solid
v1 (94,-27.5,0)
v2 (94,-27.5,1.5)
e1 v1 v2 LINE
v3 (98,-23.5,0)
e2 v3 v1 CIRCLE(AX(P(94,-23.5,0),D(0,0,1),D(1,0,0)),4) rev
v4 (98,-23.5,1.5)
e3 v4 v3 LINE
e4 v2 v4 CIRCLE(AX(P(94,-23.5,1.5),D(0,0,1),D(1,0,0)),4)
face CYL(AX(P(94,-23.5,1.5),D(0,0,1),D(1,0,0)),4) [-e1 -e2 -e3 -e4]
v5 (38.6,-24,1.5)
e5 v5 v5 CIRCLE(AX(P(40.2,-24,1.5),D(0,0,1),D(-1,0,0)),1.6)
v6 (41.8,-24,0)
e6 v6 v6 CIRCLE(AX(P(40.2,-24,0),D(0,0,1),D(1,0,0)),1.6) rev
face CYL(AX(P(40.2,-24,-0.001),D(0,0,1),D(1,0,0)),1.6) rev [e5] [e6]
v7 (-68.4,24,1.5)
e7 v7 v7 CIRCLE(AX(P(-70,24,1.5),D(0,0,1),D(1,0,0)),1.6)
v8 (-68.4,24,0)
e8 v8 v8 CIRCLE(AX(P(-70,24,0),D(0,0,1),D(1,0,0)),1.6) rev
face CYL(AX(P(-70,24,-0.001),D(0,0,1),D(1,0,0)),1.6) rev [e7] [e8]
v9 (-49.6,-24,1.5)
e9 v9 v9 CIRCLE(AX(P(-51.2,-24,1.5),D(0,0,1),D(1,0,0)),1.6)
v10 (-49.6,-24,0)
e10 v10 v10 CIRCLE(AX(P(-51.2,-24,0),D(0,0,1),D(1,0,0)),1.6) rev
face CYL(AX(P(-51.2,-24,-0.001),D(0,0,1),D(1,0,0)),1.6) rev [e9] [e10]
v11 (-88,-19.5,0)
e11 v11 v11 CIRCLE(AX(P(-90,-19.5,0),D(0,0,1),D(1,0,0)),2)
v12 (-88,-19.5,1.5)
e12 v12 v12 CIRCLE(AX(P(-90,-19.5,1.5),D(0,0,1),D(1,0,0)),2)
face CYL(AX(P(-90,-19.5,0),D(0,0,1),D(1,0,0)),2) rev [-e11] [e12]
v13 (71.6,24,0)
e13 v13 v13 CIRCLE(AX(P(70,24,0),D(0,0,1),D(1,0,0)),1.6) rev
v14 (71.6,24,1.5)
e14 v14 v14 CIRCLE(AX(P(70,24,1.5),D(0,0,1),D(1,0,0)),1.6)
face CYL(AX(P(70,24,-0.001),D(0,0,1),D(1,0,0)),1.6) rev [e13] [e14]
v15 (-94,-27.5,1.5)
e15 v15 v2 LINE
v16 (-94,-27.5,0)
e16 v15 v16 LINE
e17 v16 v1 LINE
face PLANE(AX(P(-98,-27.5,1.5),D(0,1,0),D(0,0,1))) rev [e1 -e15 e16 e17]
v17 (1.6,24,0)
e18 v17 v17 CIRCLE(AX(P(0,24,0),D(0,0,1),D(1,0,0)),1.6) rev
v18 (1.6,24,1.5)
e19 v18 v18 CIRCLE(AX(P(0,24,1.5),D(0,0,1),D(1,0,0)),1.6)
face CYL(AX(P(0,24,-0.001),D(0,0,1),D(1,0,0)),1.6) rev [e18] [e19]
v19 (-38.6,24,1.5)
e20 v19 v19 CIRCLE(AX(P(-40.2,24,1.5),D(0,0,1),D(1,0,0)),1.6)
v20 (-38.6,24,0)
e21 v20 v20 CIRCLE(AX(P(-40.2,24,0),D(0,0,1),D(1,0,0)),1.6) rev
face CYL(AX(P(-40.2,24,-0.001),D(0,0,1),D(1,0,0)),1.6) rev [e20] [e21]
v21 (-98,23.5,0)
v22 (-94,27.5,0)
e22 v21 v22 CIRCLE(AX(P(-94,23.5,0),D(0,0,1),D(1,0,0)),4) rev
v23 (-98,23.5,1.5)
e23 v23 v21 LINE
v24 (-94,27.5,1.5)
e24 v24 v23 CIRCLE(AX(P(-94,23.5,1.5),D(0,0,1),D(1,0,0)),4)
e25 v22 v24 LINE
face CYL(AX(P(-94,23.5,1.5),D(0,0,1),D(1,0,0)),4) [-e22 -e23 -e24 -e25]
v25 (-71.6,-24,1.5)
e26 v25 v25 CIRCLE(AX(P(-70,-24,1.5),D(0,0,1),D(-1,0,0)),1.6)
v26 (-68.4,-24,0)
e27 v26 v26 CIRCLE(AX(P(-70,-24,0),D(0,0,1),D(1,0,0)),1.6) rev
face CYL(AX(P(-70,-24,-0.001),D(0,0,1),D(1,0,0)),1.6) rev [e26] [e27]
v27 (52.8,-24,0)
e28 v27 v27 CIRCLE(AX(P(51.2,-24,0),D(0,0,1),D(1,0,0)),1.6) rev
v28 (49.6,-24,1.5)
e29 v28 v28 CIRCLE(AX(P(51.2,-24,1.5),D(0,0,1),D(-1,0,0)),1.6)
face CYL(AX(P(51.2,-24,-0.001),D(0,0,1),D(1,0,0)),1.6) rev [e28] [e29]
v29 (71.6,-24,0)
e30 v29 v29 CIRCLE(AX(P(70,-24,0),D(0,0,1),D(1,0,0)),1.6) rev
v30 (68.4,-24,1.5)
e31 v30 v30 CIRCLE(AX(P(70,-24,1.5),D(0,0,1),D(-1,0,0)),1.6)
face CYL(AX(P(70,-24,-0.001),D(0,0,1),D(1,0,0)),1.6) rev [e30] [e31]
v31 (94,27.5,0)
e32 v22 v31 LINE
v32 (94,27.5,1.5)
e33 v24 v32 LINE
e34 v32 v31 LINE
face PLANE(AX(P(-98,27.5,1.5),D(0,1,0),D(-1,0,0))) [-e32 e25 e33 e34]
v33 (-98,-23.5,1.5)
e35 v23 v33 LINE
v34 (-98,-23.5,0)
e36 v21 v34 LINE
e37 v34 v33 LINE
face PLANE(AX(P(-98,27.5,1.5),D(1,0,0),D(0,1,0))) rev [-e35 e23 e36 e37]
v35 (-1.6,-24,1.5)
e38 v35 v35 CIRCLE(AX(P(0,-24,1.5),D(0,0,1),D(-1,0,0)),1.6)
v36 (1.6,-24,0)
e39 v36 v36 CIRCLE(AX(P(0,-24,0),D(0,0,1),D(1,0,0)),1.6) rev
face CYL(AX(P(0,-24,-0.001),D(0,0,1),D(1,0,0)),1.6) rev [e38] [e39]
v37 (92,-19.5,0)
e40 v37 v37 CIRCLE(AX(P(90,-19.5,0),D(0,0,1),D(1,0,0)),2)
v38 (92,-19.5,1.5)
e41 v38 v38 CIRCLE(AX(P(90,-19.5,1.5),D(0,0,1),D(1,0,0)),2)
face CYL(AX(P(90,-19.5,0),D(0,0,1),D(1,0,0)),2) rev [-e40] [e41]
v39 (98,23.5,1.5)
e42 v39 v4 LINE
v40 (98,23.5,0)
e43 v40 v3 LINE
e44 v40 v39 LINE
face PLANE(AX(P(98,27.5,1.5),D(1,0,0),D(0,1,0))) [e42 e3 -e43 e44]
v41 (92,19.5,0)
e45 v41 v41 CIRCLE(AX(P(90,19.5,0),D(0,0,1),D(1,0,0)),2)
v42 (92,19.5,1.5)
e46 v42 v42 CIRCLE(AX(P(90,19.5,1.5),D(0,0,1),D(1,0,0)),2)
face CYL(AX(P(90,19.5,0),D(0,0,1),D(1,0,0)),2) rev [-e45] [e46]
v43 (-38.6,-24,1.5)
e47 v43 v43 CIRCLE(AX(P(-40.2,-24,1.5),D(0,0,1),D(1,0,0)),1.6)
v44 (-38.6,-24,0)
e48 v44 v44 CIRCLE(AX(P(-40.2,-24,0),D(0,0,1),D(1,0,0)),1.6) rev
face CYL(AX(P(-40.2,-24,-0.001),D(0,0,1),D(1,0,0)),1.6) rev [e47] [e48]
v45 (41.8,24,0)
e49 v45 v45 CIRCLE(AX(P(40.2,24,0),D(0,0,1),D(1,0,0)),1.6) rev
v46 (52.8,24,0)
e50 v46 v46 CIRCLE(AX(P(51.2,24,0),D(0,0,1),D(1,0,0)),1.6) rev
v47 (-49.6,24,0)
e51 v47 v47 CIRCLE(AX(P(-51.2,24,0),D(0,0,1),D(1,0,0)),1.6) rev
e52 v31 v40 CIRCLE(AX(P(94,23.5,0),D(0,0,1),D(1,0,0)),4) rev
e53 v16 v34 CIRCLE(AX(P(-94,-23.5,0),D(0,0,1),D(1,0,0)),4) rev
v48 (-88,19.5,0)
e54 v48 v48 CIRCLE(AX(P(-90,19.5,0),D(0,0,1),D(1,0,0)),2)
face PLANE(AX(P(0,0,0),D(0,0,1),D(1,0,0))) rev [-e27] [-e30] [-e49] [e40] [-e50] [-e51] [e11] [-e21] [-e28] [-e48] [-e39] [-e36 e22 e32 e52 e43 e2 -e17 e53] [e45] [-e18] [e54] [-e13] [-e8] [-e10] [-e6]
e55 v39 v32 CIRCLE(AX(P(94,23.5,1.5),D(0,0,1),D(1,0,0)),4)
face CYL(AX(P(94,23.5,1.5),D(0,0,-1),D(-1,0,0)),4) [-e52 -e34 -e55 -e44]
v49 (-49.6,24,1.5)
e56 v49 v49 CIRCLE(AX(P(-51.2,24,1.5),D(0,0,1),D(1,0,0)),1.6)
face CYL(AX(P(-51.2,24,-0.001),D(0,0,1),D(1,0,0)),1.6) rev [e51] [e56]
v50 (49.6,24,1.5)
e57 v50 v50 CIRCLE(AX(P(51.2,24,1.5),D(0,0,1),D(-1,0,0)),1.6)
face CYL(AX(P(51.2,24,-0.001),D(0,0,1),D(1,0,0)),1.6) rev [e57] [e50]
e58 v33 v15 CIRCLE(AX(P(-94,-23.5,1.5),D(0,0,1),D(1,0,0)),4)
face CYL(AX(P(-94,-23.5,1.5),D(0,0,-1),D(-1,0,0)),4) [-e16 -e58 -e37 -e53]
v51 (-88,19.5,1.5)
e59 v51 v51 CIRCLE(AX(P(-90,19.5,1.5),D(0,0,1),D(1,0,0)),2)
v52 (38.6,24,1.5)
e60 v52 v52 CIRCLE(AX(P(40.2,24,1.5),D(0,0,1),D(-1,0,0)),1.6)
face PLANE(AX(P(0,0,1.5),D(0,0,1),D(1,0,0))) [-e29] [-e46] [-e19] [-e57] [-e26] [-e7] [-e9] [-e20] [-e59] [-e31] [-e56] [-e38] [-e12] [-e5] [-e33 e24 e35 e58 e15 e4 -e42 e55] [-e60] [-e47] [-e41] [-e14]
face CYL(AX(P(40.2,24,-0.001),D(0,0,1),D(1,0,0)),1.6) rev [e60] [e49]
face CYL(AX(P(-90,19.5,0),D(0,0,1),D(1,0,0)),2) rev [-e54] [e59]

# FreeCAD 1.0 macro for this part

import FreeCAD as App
import Part
import Sketcher


def edges_at(feature, points):
    """Names of the edges that pass closest to the given points."""
    edges = feature.Shape.Edges
    near = lambda p: min(range(len(edges)), key=lambda i: edges[i].distToShape(Part.Vertex(*p))[0])
    return sorted({f"Edge{near(p) + 1}" for p in points})

doc = App.newDocument("Part")
body = doc.addObject("PartDesign::Body", "Body")

# Sketch on XY plane
sketch1 = doc.addObject("Sketcher::SketchObject", "Sketch")
body.addObject(sketch1)
sketch1.AttachmentSupport = (doc.XY_Plane, [""])
sketch1.MapMode = "FlatFace"
sketch1.addGeometry([
    Part.LineSegment(App.Vector(-98, 28, 0), App.Vector(-98, -28, 0)),
    Part.LineSegment(App.Vector(-98, -28, 0), App.Vector(98, -28, 0)),
    Part.LineSegment(App.Vector(98, -28, 0), App.Vector(98, 28, 0)),
    Part.LineSegment(App.Vector(98, 28, 0), App.Vector(-98, 28, 0)),
], False)
sketch1.addConstraint([
    Sketcher.Constraint("Coincident", 0, 2, 1, 1),
    Sketcher.Constraint("Coincident", 1, 2, 2, 1),
    Sketcher.Constraint("Coincident", 2, 2, 3, 1),
    Sketcher.Constraint("Coincident", 3, 2, 0, 1),
    Sketcher.Constraint("Vertical", 0),
    Sketcher.Constraint("Horizontal", 1),
    Sketcher.Constraint("Vertical", 2),
    Sketcher.Constraint("Horizontal", 3),
    Sketcher.Constraint("Symmetric", 0, 2, 2, 2, -1, 1),
    Sketcher.Constraint("DistanceX", 1, 1, 1, 2, 196.0),
    Sketcher.Constraint("DistanceY", 0, 2, 0, 1, 55.0),
])
pad1 = doc.addObject("PartDesign::Pad", "Pad")
body.addObject(pad1)
pad1.Profile = sketch1
pad1.Length = 1.5
doc.recompute()

fillet = doc.addObject("PartDesign::Fillet", "Fillet")
body.addObject(fillet)
fillet.Base = (pad1, edges_at(pad1, [
    (-98, 27.5, 0.75),
    (98, 27.5, 0.75),
    (98, -27.5, 0.75),
    (-98, -27.5, 0.75),
]))
fillet.Radius = 4

# Sketch on XY plane
sketch2 = doc.addObject("Sketcher::SketchObject", "Sketch001")
body.addObject(sketch2)
sketch2.AttachmentSupport = (doc.XY_Plane, [""])
sketch2.MapMode = "FlatFace"
sketch2.AttachmentOffset = App.Placement(App.Vector(0, 0, 1.5), App.Rotation())
sketch2.addGeometry([
    Part.Circle(App.Vector(-90, 19.5, 0), App.Vector(0, 0, 1), 2),
    Part.Circle(App.Vector(-90, -19.5, 0), App.Vector(0, 0, 1), 2),
    Part.Circle(App.Vector(90, 19.5, 0), App.Vector(0, 0, 1), 2),
    Part.Circle(App.Vector(90, -19.5, 0), App.Vector(0, 0, 1), 2),
], False)
sketch2.addConstraint([
    Sketcher.Constraint("Equal", 0, 1),
    Sketcher.Constraint("Equal", 1, 2),
    Sketcher.Constraint("Equal", 2, 3),
    Sketcher.Constraint("Symmetric", 1, 3, 2, 3, -1, 1),
    Sketcher.Constraint("Symmetric", 0, 3, 3, 3, -1, 1),
    Sketcher.Constraint("Symmetric", 0, 3, 2, 3, -2),
    Sketcher.Constraint("Diameter", 0, 4.0),
    Sketcher.Constraint("DistanceX", 0, 3, -1, 1, 90.0),
    Sketcher.Constraint("DistanceY", 1, 3, 0, 3, 39.0),
])
pocket1 = doc.addObject("PartDesign::Pocket", "Pocket")
body.addObject(pocket1)
pocket1.Profile = sketch2
pocket1.Type = "ThroughAll"

# Sketch on XY plane
sketch3 = doc.addObject("Sketcher::SketchObject", "Sketch002")
body.addObject(sketch3)
sketch3.AttachmentSupport = (doc.XY_Plane, [""])
sketch3.MapMode = "FlatFace"
sketch3.AttachmentOffset = App.Placement(App.Vector(0, 0, 1.5), App.Rotation())
sketch3.addGeometry(Part.Circle(App.Vector(-51.2, 24, 0), App.Vector(0, 0, 1), 1.6), False)
sketch3.addConstraint([
    Sketcher.Constraint("Diameter", 0, 3.2),
    Sketcher.Constraint("DistanceY", -1, 1, 0, 3, 24.0),
    Sketcher.Constraint("DistanceX", 0, 3, -1, 1, 51.2),
])
pocket2 = doc.addObject("PartDesign::Pocket", "Pocket001")
body.addObject(pocket2)
pocket2.Profile = sketch3
pocket2.Type = "UpToFirst"

# Sketch on XY plane
sketch4 = doc.addObject("Sketcher::SketchObject", "Sketch003")
body.addObject(sketch4)
sketch4.AttachmentSupport = (doc.XY_Plane, [""])
sketch4.MapMode = "FlatFace"
sketch4.AttachmentOffset = App.Placement(App.Vector(0, 0, 1.5), App.Rotation())
sketch4.addGeometry(Part.Circle(App.Vector(-40.2, 24, 0), App.Vector(0, 0, 1), 1.6), False)
sketch4.addConstraint([
    Sketcher.Constraint("Diameter", 0, 3.2),
    Sketcher.Constraint("DistanceY", -1, 1, 0, 3, 24.0),
    Sketcher.Constraint("DistanceX", 0, 3, -1, 1, 40.2),
])
pocket3 = doc.addObject("PartDesign::Pocket", "Pocket002")
body.addObject(pocket3)
pocket3.Profile = sketch4
pocket3.Type = "UpToFirst"

# Sketch on XY plane
sketch5 = doc.addObject("Sketcher::SketchObject", "Sketch004")
body.addObject(sketch5)
sketch5.AttachmentSupport = (doc.XY_Plane, [""])
sketch5.MapMode = "FlatFace"
sketch5.AttachmentOffset = App.Placement(App.Vector(0, 0, 1.5), App.Rotation())
sketch5.addGeometry(Part.Circle(App.Vector(-40.2, -24, 0), App.Vector(0, 0, 1), 1.6), False)
sketch5.addConstraint([
    Sketcher.Constraint("Diameter", 0, 3.2),
    Sketcher.Constraint("DistanceY", 0, 3, -1, 1, 24.0),
    Sketcher.Constraint("DistanceX", 0, 3, -1, 1, 40.2),
])
pocket4 = doc.addObject("PartDesign::Pocket", "Pocket003")
body.addObject(pocket4)
pocket4.Profile = sketch5
pocket4.Type = "UpToFirst"

# Sketch on XY plane
sketch6 = doc.addObject("Sketcher::SketchObject", "Sketch005")
body.addObject(sketch6)
sketch6.AttachmentSupport = (doc.XY_Plane, [""])
sketch6.MapMode = "FlatFace"
sketch6.AttachmentOffset = App.Placement(App.Vector(0, 0, 1.5), App.Rotation())
sketch6.addGeometry(Part.Circle(App.Vector(-51.2, -24, 0), App.Vector(0, 0, 1), 1.6), False)
sketch6.addConstraint([
    Sketcher.Constraint("Diameter", 0, 3.2),
    Sketcher.Constraint("DistanceY", 0, 3, -1, 1, 24.0),
    Sketcher.Constraint("DistanceX", 0, 3, -1, 1, 51.2),
])
pocket5 = doc.addObject("PartDesign::Pocket", "Pocket004")
body.addObject(pocket5)
pocket5.Profile = sketch6
pocket5.Type = "UpToFirst"

# Sketch on XY plane
sketch7 = doc.addObject("Sketcher::SketchObject", "Sketch006")
body.addObject(sketch7)
sketch7.AttachmentSupport = (doc.XY_Plane, [""])
sketch7.MapMode = "FlatFace"
sketch7.AttachmentOffset = App.Placement(App.Vector(0, 0, 1.5), App.Rotation())
sketch7.addGeometry(Part.Circle(App.Vector(40.2, -24, 0), App.Vector(0, 0, 1), 1.6), False)
sketch7.addConstraint([
    Sketcher.Constraint("Diameter", 0, 3.2),
    Sketcher.Constraint("DistanceY", 0, 3, -1, 1, 24.0),
    Sketcher.Constraint("DistanceX", -1, 1, 0, 3, 40.2),
])
pocket6 = doc.addObject("PartDesign::Pocket", "Pocket005")
body.addObject(pocket6)
pocket6.Profile = sketch7
pocket6.Type = "UpToFirst"

# Sketch on XY plane
sketch8 = doc.addObject("Sketcher::SketchObject", "Sketch007")
body.addObject(sketch8)
sketch8.AttachmentSupport = (doc.XY_Plane, [""])
sketch8.MapMode = "FlatFace"
sketch8.AttachmentOffset = App.Placement(App.Vector(0, 0, 1.5), App.Rotation())
sketch8.addGeometry(Part.Circle(App.Vector(51.2, -24, 0), App.Vector(0, 0, 1), 1.6), False)
sketch8.addConstraint([
    Sketcher.Constraint("Diameter", 0, 3.2),
    Sketcher.Constraint("DistanceY", 0, 3, -1, 1, 24.0),
    Sketcher.Constraint("DistanceX", -1, 1, 0, 3, 51.2),
])
pocket7 = doc.addObject("PartDesign::Pocket", "Pocket006")
body.addObject(pocket7)
pocket7.Profile = sketch8
pocket7.Type = "UpToFirst"

# Sketch on XY plane
sketch9 = doc.addObject("Sketcher::SketchObject", "Sketch008")
body.addObject(sketch9)
sketch9.AttachmentSupport = (doc.XY_Plane, [""])
sketch9.MapMode = "FlatFace"
sketch9.AttachmentOffset = App.Placement(App.Vector(0, 0, 1.5), App.Rotation())
sketch9.addGeometry(Part.Circle(App.Vector(51.2, 24, 0), App.Vector(0, 0, 1), 1.6), False)
sketch9.addConstraint([
    Sketcher.Constraint("Diameter", 0, 3.2),
    Sketcher.Constraint("DistanceY", -1, 1, 0, 3, 24.0),
    Sketcher.Constraint("DistanceX", -1, 1, 0, 3, 51.2),
])
pocket8 = doc.addObject("PartDesign::Pocket", "Pocket007")
body.addObject(pocket8)
pocket8.Profile = sketch9
pocket8.Type = "UpToFirst"

# Sketch on XY plane
sketch10 = doc.addObject("Sketcher::SketchObject", "Sketch009")
body.addObject(sketch10)
sketch10.AttachmentSupport = (doc.XY_Plane, [""])
sketch10.MapMode = "FlatFace"
sketch10.AttachmentOffset = App.Placement(App.Vector(0, 0, 1.5), App.Rotation())
sketch10.addGeometry(Part.Circle(App.Vector(40.2, 24, 0), App.Vector(0, 0, 1), 1.6), False)
sketch10.addConstraint([
    Sketcher.Constraint("Diameter", 0, 3.2),
    Sketcher.Constraint("DistanceY", -1, 1, 0, 3, 24.0),
    Sketcher.Constraint("DistanceX", -1, 1, 0, 3, 40.2),
])
pocket9 = doc.addObject("PartDesign::Pocket", "Pocket008")
body.addObject(pocket9)
pocket9.Profile = sketch10
pocket9.Type = "UpToFirst"

# Sketch on XY plane
sketch11 = doc.addObject("Sketcher::SketchObject", "Sketch010")
body.addObject(sketch11)
sketch11.AttachmentSupport = (doc.XY_Plane, [""])
sketch11.MapMode = "FlatFace"
sketch11.AttachmentOffset = App.Placement(App.Vector(0, 0, 1.5), App.Rotation())
sketch11.addGeometry(Part.Circle(App.Vector(-70, 24, 0), App.Vector(0, 0, 1), 1.6), False)
sketch11.addConstraint([
    Sketcher.Constraint("Diameter", 0, 3.2),
    Sketcher.Constraint("DistanceX", 0, 3, -1, 1, 70.0),
    Sketcher.Constraint("DistanceY", -1, 1, 0, 3, 24.0),
])
pocket10 = doc.addObject("PartDesign::Pocket", "Pocket009")
body.addObject(pocket10)
pocket10.Profile = sketch11
pocket10.Type = "UpToFirst"

# Sketch on XY plane
sketch12 = doc.addObject("Sketcher::SketchObject", "Sketch011")
body.addObject(sketch12)
sketch12.AttachmentSupport = (doc.XY_Plane, [""])
sketch12.MapMode = "FlatFace"
sketch12.AttachmentOffset = App.Placement(App.Vector(0, 0, 1.5), App.Rotation())
sketch12.addGeometry(Part.Circle(App.Vector(0, 24, 0), App.Vector(0, 0, 1), 1.6), False)
sketch12.addConstraint([
    Sketcher.Constraint("PointOnObject", 0, 3, -2),
    Sketcher.Constraint("Diameter", 0, 3.2),
    Sketcher.Constraint("DistanceY", -1, 1, 0, 3, 24.0),
])
pocket11 = doc.addObject("PartDesign::Pocket", "Pocket010")
body.addObject(pocket11)
pocket11.Profile = sketch12
pocket11.Type = "UpToFirst"

# Sketch on XY plane
sketch13 = doc.addObject("Sketcher::SketchObject", "Sketch012")
body.addObject(sketch13)
sketch13.AttachmentSupport = (doc.XY_Plane, [""])
sketch13.MapMode = "FlatFace"
sketch13.AttachmentOffset = App.Placement(App.Vector(0, 0, 1.5), App.Rotation())
sketch13.addGeometry(Part.Circle(App.Vector(70, 24, 0), App.Vector(0, 0, 1), 1.6), False)
sketch13.addConstraint([
    Sketcher.Constraint("Diameter", 0, 3.2),
    Sketcher.Constraint("DistanceX", -1, 1, 0, 3, 70.0),
    Sketcher.Constraint("DistanceY", -1, 1, 0, 3, 24.0),
])
pocket12 = doc.addObject("PartDesign::Pocket", "Pocket011")
body.addObject(pocket12)
pocket12.Profile = sketch13
pocket12.Type = "UpToFirst"

# Sketch on XY plane
sketch14 = doc.addObject("Sketcher::SketchObject", "Sketch013")
body.addObject(sketch14)
sketch14.AttachmentSupport = (doc.XY_Plane, [""])
sketch14.MapMode = "FlatFace"
sketch14.AttachmentOffset = App.Placement(App.Vector(0, 0, 1.5), App.Rotation())
sketch14.addGeometry(Part.Circle(App.Vector(70, -24, 0), App.Vector(0, 0, 1), 1.6), False)
sketch14.addConstraint([
    Sketcher.Constraint("Diameter", 0, 3.2),
    Sketcher.Constraint("DistanceX", -1, 1, 0, 3, 70.0),
    Sketcher.Constraint("DistanceY", 0, 3, -1, 1, 24.0),
])
pocket13 = doc.addObject("PartDesign::Pocket", "Pocket012")
body.addObject(pocket13)
pocket13.Profile = sketch14
pocket13.Type = "UpToFirst"

# Sketch on XY plane
sketch15 = doc.addObject("Sketcher::SketchObject", "Sketch014")
body.addObject(sketch15)
sketch15.AttachmentSupport = (doc.XY_Plane, [""])
sketch15.MapMode = "FlatFace"
sketch15.AttachmentOffset = App.Placement(App.Vector(0, 0, 1.5), App.Rotation())
sketch15.addGeometry(Part.Circle(App.Vector(0, -24, 0), App.Vector(0, 0, 1), 1.6), False)
sketch15.addConstraint([
    Sketcher.Constraint("PointOnObject", 0, 3, -2),
    Sketcher.Constraint("Diameter", 0, 3.2),
    Sketcher.Constraint("DistanceY", 0, 3, -1, 1, 24.0),
])
pocket14 = doc.addObject("PartDesign::Pocket", "Pocket013")
body.addObject(pocket14)
pocket14.Profile = sketch15
pocket14.Type = "UpToFirst"

# Sketch on XY plane
sketch16 = doc.addObject("Sketcher::SketchObject", "Sketch015")
body.addObject(sketch16)
sketch16.AttachmentSupport = (doc.XY_Plane, [""])
sketch16.MapMode = "FlatFace"
sketch16.AttachmentOffset = App.Placement(App.Vector(0, 0, 1.5), App.Rotation())
sketch16.addGeometry(Part.Circle(App.Vector(-70, -24, 0), App.Vector(0, 0, 1), 1.6), False)
sketch16.addConstraint([
    Sketcher.Constraint("Diameter", 0, 3.2),
    Sketcher.Constraint("DistanceX", 0, 3, -1, 1, 70.0),
    Sketcher.Constraint("DistanceY", 0, 3, -1, 1, 24.0),
])
pocket15 = doc.addObject("PartDesign::Pocket", "Pocket014")
body.addObject(pocket15)
pocket15.Profile = sketch16
pocket15.Type = "UpToFirst"

doc.recompute()
